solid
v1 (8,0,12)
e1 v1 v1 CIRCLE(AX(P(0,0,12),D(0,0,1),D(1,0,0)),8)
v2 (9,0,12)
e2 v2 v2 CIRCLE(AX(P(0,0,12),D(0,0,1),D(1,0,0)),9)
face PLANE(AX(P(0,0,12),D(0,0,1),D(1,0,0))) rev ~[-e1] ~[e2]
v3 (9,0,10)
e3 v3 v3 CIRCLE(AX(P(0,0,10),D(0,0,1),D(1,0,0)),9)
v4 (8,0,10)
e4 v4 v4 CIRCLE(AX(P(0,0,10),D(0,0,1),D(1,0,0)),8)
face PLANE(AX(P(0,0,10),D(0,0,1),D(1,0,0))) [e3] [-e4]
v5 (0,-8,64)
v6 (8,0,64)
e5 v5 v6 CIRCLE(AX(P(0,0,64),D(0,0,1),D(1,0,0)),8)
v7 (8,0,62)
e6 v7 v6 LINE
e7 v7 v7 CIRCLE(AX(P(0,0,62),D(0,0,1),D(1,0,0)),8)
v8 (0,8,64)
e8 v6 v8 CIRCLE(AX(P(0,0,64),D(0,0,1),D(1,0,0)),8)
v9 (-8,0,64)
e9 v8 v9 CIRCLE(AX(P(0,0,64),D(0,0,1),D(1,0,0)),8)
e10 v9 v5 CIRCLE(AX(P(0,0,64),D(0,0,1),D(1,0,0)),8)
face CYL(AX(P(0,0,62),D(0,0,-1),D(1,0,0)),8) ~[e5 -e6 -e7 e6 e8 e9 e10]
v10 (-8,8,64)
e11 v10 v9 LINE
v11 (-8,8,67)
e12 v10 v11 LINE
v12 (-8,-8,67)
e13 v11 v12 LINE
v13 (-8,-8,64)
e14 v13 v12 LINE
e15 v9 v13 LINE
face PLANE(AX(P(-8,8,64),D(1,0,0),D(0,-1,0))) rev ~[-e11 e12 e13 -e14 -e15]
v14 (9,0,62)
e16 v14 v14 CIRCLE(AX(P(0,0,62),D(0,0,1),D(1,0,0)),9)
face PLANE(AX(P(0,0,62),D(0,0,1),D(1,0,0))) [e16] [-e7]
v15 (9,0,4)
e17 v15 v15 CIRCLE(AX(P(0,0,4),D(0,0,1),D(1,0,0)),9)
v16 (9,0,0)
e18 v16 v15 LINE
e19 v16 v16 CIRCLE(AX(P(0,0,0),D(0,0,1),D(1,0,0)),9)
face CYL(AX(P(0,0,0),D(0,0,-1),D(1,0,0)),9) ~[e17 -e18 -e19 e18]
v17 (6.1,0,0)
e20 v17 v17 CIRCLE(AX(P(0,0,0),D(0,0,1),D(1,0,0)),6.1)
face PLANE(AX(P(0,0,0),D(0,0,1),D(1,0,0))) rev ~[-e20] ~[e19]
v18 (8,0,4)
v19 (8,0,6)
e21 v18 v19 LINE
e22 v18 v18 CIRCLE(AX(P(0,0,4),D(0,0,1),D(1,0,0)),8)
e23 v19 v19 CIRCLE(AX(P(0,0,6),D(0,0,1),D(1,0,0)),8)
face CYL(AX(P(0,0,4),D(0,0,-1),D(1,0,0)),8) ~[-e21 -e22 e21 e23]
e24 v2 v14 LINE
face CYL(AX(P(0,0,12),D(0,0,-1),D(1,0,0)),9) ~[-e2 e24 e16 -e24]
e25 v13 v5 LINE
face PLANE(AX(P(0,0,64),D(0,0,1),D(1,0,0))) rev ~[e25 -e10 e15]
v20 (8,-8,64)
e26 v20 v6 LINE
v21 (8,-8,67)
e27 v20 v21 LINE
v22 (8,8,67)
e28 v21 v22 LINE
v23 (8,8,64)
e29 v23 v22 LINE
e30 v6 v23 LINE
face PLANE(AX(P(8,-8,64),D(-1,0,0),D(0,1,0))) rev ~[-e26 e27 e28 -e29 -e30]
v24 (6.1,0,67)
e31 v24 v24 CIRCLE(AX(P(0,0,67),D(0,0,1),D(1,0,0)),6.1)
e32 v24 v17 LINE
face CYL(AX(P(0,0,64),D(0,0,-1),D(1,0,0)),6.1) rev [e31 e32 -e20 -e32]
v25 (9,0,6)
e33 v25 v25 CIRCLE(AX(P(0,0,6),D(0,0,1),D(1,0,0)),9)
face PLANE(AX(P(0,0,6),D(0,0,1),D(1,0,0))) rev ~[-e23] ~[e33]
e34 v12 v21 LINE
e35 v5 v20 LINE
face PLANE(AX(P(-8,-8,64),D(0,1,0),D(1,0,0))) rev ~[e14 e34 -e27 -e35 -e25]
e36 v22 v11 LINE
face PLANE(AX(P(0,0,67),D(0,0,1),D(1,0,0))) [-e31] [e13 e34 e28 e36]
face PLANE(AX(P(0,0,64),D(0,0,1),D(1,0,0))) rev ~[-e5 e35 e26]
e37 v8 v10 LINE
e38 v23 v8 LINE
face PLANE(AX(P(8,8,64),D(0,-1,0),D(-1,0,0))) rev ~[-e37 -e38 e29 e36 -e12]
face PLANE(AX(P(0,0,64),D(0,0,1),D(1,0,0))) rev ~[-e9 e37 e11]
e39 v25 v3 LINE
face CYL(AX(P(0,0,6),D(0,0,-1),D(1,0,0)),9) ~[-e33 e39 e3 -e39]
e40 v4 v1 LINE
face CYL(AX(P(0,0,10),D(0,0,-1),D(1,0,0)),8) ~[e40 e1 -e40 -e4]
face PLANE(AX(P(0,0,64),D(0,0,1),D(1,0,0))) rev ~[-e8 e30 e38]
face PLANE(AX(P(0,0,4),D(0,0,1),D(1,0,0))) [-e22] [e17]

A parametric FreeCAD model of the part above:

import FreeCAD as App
import Part
import Sketcher

V = App.Vector
Q = App.Units.Quantity


def add_polygon(sketch, points):
    """Adds a closed chain of lines whose ends are joined by coincident constraints."""
    first, n = sketch.GeometryCount, len(points)
    for a, b in zip(points, points[1:] + points[:1]):
        sketch.addGeometry(Part.LineSegment(App.Vector(*a, 0), App.Vector(*b, 0)), False)
    for i in range(n):
        sketch.addConstraint(Sketcher.Constraint("Coincident", first + i, 2, first + (i + 1) % n, 1))

doc = App.newDocument("Part")
body = doc.addObject("PartDesign::Body", "Body")

sketch1 = doc.addObject("Sketcher::SketchObject", "Sketch")
body.addObject(sketch1)
sketch1.AttachmentSupport = (doc.XY_Plane, [""])
sketch1.MapMode = "FlatFace"
sketch1.addGeometry(Part.Circle(V(0, 0, 0), V(0, 0, 1), 9), False)
sketch1.addGeometry(Part.Circle(V(0, 0, 0), V(0, 0, 1), 6), False)
sketch1.addConstraint(Sketcher.Constraint("Coincident", 0, 3, -1, 1))
sketch1.addConstraint(Sketcher.Constraint("Coincident", 1, 3, -1, 1))
sketch1.addConstraint(Sketcher.Constraint("Diameter", 0, Q("18 mm")))
sketch1.addConstraint(Sketcher.Constraint("Diameter", 1, Q("12.2 mm")))
pad1 = doc.addObject("PartDesign::Pad", "Pad")
body.addObject(pad1)
pad1.Profile = sketch1
pad1.Length = 4

sketch2 = doc.addObject("Sketcher::SketchObject", "Sketch001")
body.addObject(sketch2)
sketch2.AttachmentSupport = (doc.XY_Plane, [""])
sketch2.MapMode = "FlatFace"
sketch2.AttachmentOffset = App.Placement(V(0, 0, 4), App.Rotation())
sketch2.addGeometry(Part.Circle(V(0, 0, 0), V(0, 0, 1), 8), False)
sketch2.addGeometry(Part.Circle(V(0, 0, 0), V(0, 0, 1), 6), False)
sketch2.addConstraint(Sketcher.Constraint("Coincident", 0, 3, -1, 1))
sketch2.addConstraint(Sketcher.Constraint("Coincident", 1, 3, -1, 1))
sketch2.addConstraint(Sketcher.Constraint("Diameter", 0, Q("16 mm")))
sketch2.addConstraint(Sketcher.Constraint("Diameter", 1, Q("12.2 mm")))
pad2 = doc.addObject("PartDesign::Pad", "Pad001")
body.addObject(pad2)
pad2.Profile = sketch2
pad2.Length = 2

sketch3 = doc.addObject("Sketcher::SketchObject", "Sketch002")
body.addObject(sketch3)
sketch3.AttachmentSupport = (doc.XY_Plane, [""])
sketch3.MapMode = "FlatFace"
sketch3.AttachmentOffset = App.Placement(V(0, 0, 6), App.Rotation())
sketch3.addGeometry(Part.Circle(V(0, 0, 0), V(0, 0, 1), 9), False)
sketch3.addGeometry(Part.Circle(V(0, 0, 0), V(0, 0, 1), 6), False)
sketch3.addConstraint(Sketcher.Constraint("Coincident", 0, 3, -1, 1))
sketch3.addConstraint(Sketcher.Constraint("Coincident", 1, 3, -1, 1))
sketch3.addConstraint(Sketcher.Constraint("Diameter", 0, Q("18 mm")))
sketch3.addConstraint(Sketcher.Constraint("Diameter", 1, Q("12.2 mm")))
pad3 = doc.addObject("PartDesign::Pad", "Pad002")
body.addObject(pad3)
pad3.Profile = sketch3
pad3.Length = 4

sketch4 = doc.addObject("Sketcher::SketchObject", "Sketch003")
body.addObject(sketch4)
sketch4.AttachmentSupport = (doc.XY_Plane, [""])
sketch4.MapMode = "FlatFace"
sketch4.AttachmentOffset = App.Placement(V(0, 0, 10), App.Rotation())
sketch4.addGeometry(Part.Circle(V(0, 0, 0), V(0, 0, 1), 8), False)
sketch4.addGeometry(Part.Circle(V(0, 0, 0), V(0, 0, 1), 6), False)
sketch4.addConstraint(Sketcher.Constraint("Coincident", 0, 3, -1, 1))
sketch4.addConstraint(Sketcher.Constraint("Coincident", 1, 3, -1, 1))
sketch4.addConstraint(Sketcher.Constraint("Diameter", 0, Q("16 mm")))
sketch4.addConstraint(Sketcher.Constraint("Diameter", 1, Q("12.2 mm")))
pad4 = doc.addObject("PartDesign::Pad", "Pad003")
body.addObject(pad4)
pad4.Profile = sketch4
pad4.Length = 2

sketch5 = doc.addObject("Sketcher::SketchObject", "Sketch004")
body.addObject(sketch5)
sketch5.AttachmentSupport = (doc.XY_Plane, [""])
sketch5.MapMode = "FlatFace"
sketch5.AttachmentOffset = App.Placement(V(0, 0, 12), App.Rotation())
sketch5.addGeometry(Part.Circle(V(0, 0, 0), V(0, 0, 1), 9), False)
sketch5.addGeometry(Part.Circle(V(0, 0, 0), V(0, 0, 1), 6), False)
sketch5.addConstraint(Sketcher.Constraint("Coincident", 0, 3, -1, 1))
sketch5.addConstraint(Sketcher.Constraint("Coincident", 1, 3, -1, 1))
sketch5.addConstraint(Sketcher.Constraint("Diameter", 0, Q("18 mm")))
sketch5.addConstraint(Sketcher.Constraint("Diameter", 1, Q("12.2 mm")))
pad5 = doc.addObject("PartDesign::Pad", "Pad004")
body.addObject(pad5)
pad5.Profile = sketch5
pad5.Length = 50

sketch6 = doc.addObject("Sketcher::SketchObject", "Sketch005")
body.addObject(sketch6)
sketch6.AttachmentSupport = (doc.XY_Plane, [""])
sketch6.MapMode = "FlatFace"
sketch6.AttachmentOffset = App.Placement(V(0, 0, 62), App.Rotation())
sketch6.addGeometry(Part.Circle(V(0, 0, 0), V(0, 0, 1), 8), False)
sketch6.addGeometry(Part.Circle(V(0, 0, 0), V(0, 0, 1), 6), False)
sketch6.addConstraint(Sketcher.Constraint("Coincident", 0, 3, -1, 1))
sketch6.addConstraint(Sketcher.Constraint("Coincident", 1, 3, -1, 1))
sketch6.addConstraint(Sketcher.Constraint("Diameter", 0, Q("16 mm")))
sketch6.addConstraint(Sketcher.Constraint("Diameter", 1, Q("12.2 mm")))
pad6 = doc.addObject("PartDesign::Pad", "Pad005")
body.addObject(pad6)
pad6.Profile = sketch6
pad6.Length = 2

sketch7 = doc.addObject("Sketcher::SketchObject", "Sketch006")
body.addObject(sketch7)
sketch7.AttachmentSupport = (doc.XY_Plane, [""])
sketch7.MapMode = "FlatFace"
sketch7.AttachmentOffset = App.Placement(V(0, 0, 64), App.Rotation())
add_polygon(sketch7, [(-8, 8), (-8, -8), (8, -8), (8, 8)])
sketch7.addGeometry(Part.Circle(V(0, 0, 0), V(0, 0, 1), 6), False)
sketch7.addConstraint(Sketcher.Constraint("Vertical", 0))
sketch7.addConstraint(Sketcher.Constraint("Horizontal", 1))
sketch7.addConstraint(Sketcher.Constraint("Vertical", 2))
sketch7.addConstraint(Sketcher.Constraint("Horizontal", 3))
sketch7.addConstraint(Sketcher.Constraint("Coincident", 4, 3, -1, 1))
sketch7.addConstraint(Sketcher.Constraint("Symmetric", 0, 2, 2, 2, -1, 1))
sketch7.addConstraint(Sketcher.Constraint("Equal", 3, 0))
sketch7.addConstraint(Sketcher.Constraint("Diameter", 4, Q("12.2 mm")))
sketch7.addConstraint(Sketcher.Constraint("DistanceX", 1, 1, 1, 2, Q("16 mm")))
pad7 = doc.addObject("PartDesign::Pad", "Pad006")
body.addObject(pad7)
pad7.Profile = sketch7
pad7.Length = 3

doc.recompute()
